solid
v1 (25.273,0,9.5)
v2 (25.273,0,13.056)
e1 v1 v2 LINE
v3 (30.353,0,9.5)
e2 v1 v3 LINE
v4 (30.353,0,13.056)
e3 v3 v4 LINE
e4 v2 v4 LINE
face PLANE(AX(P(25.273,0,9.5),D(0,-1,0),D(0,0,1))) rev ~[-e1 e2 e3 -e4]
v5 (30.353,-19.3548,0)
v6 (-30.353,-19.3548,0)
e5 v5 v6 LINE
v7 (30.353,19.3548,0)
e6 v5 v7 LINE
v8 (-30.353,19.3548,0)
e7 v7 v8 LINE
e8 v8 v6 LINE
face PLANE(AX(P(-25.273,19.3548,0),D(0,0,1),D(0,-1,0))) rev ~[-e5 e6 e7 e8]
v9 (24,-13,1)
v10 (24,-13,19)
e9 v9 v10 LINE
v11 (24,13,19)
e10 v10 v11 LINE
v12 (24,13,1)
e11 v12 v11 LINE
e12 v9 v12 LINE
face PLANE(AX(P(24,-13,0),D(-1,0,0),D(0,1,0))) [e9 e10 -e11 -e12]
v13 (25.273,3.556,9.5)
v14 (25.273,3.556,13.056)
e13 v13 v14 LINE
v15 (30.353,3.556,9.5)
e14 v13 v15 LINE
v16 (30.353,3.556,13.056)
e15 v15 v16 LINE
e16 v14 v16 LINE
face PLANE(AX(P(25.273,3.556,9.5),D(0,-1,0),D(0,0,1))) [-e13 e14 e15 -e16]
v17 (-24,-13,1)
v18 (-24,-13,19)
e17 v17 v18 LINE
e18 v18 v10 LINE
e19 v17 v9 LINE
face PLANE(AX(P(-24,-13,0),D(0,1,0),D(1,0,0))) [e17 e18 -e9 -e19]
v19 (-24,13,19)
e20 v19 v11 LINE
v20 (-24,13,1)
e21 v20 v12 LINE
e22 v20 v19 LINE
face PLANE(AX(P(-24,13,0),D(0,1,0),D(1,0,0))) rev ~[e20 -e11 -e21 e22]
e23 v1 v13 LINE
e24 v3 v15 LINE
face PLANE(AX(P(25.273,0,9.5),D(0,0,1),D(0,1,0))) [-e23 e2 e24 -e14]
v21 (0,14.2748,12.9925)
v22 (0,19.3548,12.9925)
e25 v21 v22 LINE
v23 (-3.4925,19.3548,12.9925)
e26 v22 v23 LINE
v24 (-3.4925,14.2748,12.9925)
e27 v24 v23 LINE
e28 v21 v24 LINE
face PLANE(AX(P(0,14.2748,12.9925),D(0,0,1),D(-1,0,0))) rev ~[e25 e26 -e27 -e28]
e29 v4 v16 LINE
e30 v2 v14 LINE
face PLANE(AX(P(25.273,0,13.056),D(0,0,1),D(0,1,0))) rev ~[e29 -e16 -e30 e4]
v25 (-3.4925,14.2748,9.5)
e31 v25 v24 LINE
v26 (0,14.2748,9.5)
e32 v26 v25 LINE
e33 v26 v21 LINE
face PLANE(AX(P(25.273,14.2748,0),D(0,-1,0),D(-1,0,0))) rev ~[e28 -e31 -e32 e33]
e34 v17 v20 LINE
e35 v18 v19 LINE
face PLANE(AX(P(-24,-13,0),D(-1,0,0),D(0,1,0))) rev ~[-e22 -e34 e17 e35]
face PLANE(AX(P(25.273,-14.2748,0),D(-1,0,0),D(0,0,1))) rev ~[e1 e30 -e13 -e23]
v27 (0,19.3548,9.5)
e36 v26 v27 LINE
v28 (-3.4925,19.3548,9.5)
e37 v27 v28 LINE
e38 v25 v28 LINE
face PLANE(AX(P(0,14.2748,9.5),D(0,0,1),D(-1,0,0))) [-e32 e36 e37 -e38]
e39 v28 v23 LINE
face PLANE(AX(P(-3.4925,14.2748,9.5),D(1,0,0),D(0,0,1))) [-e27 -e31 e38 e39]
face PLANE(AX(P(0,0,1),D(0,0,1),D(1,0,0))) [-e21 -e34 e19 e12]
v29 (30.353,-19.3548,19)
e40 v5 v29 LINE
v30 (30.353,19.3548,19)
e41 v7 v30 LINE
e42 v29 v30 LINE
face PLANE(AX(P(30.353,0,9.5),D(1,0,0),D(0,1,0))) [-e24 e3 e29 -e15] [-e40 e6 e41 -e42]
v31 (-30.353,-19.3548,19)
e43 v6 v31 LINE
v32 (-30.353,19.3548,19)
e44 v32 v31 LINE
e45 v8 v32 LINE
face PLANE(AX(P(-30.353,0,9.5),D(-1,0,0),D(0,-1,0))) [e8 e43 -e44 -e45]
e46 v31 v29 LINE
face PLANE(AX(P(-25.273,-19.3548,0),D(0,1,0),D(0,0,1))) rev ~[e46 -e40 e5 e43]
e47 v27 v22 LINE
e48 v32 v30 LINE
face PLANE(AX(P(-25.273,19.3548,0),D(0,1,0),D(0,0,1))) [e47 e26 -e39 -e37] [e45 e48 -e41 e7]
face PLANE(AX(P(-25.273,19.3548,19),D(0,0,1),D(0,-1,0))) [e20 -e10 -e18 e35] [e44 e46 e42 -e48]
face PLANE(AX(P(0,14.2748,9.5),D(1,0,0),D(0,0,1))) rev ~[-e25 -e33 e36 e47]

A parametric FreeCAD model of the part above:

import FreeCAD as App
import Part
import Sketcher

V = App.Vector
Q = App.Units.Quantity


def add_polygon(sketch, points):
    """Adds a closed chain of lines whose ends are joined by coincident constraints."""
    first, n = sketch.GeometryCount, len(points)
    for a, b in zip(points, points[1:] + points[:1]):
        sketch.addGeometry(Part.LineSegment(App.Vector(*a, 0), App.Vector(*b, 0)), False)
    for i in range(n):
        sketch.addConstraint(Sketcher.Constraint("Coincident", first + i, 2, first + (i + 1) % n, 1))

doc = App.newDocument("Part")
body = doc.addObject("PartDesign::Body", "Body")

# Sketch on XY plane
sketch1 = doc.addObject("Sketcher::SketchObject", "Sketch")
body.addObject(sketch1)
sketch1.AttachmentSupport = (doc.XY_Plane, [""])
sketch1.MapMode = "FlatFace"
add_polygon(sketch1, [(-24, 13), (-24, -13), (24, -13), (24, 13)])  # lines 0-3
sketch1.addConstraint(Sketcher.Constraint("Vertical", 0))
sketch1.addConstraint(Sketcher.Constraint("Horizontal", 1))
sketch1.addConstraint(Sketcher.Constraint("Vertical", 2))
sketch1.addConstraint(Sketcher.Constraint("Horizontal", 3))
sketch1.addConstraint(Sketcher.Constraint("Symmetric", 0, 2, 2, 2, -1, 1))
sketch1.addConstraint(Sketcher.Constraint("DistanceX", 1, 1, 1, 2, 48.0))
sketch1.addConstraint(Sketcher.Constraint("DistanceY", 0, 2, 0, 1, 26.0))
pad1 = doc.addObject("PartDesign::Pad", "Pad")
body.addObject(pad1)
pad1.Profile = sketch1
pad1.Length = 1

# Sketch on XY plane
sketch2 = doc.addObject("Sketcher::SketchObject", "Sketch001")
body.addObject(sketch2)
sketch2.AttachmentSupport = (doc.XY_Plane, [""])
sketch2.MapMode = "FlatFace"
add_polygon(sketch2, [(25.273, 14.2748), (-25.273, 14.2748), (-25.273, -14.2748), (25.273, -14.2748)])  # lines 0-3
add_polygon(sketch2, [(-24, -13), (-24, 13), (24, 13), (24, -13)])  # lines 4-7
sketch2.addConstraint(Sketcher.Constraint("Horizontal", 0))
sketch2.addConstraint(Sketcher.Constraint("Vertical", 1))
sketch2.addConstraint(Sketcher.Constraint("Horizontal", 2))
sketch2.addConstraint(Sketcher.Constraint("Vertical", 3))
sketch2.addConstraint(Sketcher.Constraint("Vertical", 4))
sketch2.addConstraint(Sketcher.Constraint("Horizontal", 5))
sketch2.addConstraint(Sketcher.Constraint("Vertical", 6))
sketch2.addConstraint(Sketcher.Constraint("Horizontal", 7))
sketch2.addConstraint(Sketcher.Constraint("Symmetric", 0, 2, 2, 2, -1, 1))
sketch2.addConstraint(Sketcher.Constraint("Symmetric", 4, 2, 6, 2, -1, 1))
sketch2.addConstraint(Sketcher.Constraint("DistanceX", 0, 2, 0, 1, Q("1.99 in")))
sketch2.addConstraint(Sketcher.Constraint("DistanceY", 1, 2, 1, 1, Q("1.124 in")))
sketch2.addConstraint(Sketcher.Constraint("DistanceX", 5, 1, 5, 2, 48.0))
sketch2.addConstraint(Sketcher.Constraint("DistanceY", 4, 1, 4, 2, 26.0))
pad2 = doc.addObject("PartDesign::Pad", "Pad001")
body.addObject(pad2)
pad2.Profile = sketch2
pad2.Length = 19

# Sketch on XZ plane
sketch3 = doc.addObject("Sketcher::SketchObject", "Sketch002")
body.addObject(sketch3)
sketch3.AttachmentSupport = (doc.XZ_Plane, [""])
sketch3.MapMode = "FlatFace"
sketch3.AttachmentOffset = App.Placement(V(0, 0, -0.562 * 25.4), App.Rotation())
add_polygon(sketch3, [(25.273, 19), (25.273, 0), (-25.273, 0), (-25.273, 19)])  # lines 0-3
add_polygon(sketch3, [(-3.4925, 9.5), (0, 9.5), (0, 12.9925), (-3.4925, 12.9925)])  # lines 4-7
sketch3.addConstraint(Sketcher.Constraint("Vertical", 0))
sketch3.addConstraint(Sketcher.Constraint("Horizontal", 1))
sketch3.addConstraint(Sketcher.Constraint("Vertical", 2))
sketch3.addConstraint(Sketcher.Constraint("Horizontal", 3))
sketch3.addConstraint(Sketcher.Constraint("Horizontal", 4))
sketch3.addConstraint(Sketcher.Constraint("Vertical", 5))
sketch3.addConstraint(Sketcher.Constraint("Horizontal", 6))
sketch3.addConstraint(Sketcher.Constraint("Vertical", 7))
sketch3.addConstraint(Sketcher.Constraint("Symmetric", 0, 2, 1, 2, -1, 1))
sketch3.addConstraint(Sketcher.Constraint("PointOnObject", 4, 2, -2))
sketch3.addConstraint(Sketcher.Constraint("Equal", 6, 5))
sketch3.addConstraint(Sketcher.Constraint("DistanceX", 1, 2, 1, 1, Q("1.99 in")))
sketch3.addConstraint(Sketcher.Constraint("DistanceX", 4, 1, 4, 2, Q("0.1375 in")))
sketch3.addConstraint(Sketcher.Constraint("DistanceY", 0, 2, 0, 1, 19.0))
sketch3.addConstraint(Sketcher.Constraint("DistanceY", -1, 1, 4, 2, 9.5))
pad3 = doc.addObject("PartDesign::Pad", "Pad002")
body.addObject(pad3)
pad3.Profile = sketch3
pad3.Length = Q("0.2 in")
pad3.Reversed = True

# Sketch on XZ plane
sketch4 = doc.addObject("Sketcher::SketchObject", "Sketch003")
body.addObject(sketch4)
sketch4.AttachmentSupport = (doc.XZ_Plane, [""])
sketch4.MapMode = "FlatFace"
sketch4.AttachmentOffset = App.Placement(V(0, 0, 0.562 * 25.4), App.Rotation())
add_polygon(sketch4, [(-25.273, 19), (-25.273, 0), (25.273, 0), (25.273, 19)])  # lines 0-3
sketch4.addConstraint(Sketcher.Constraint("Vertical", 0))
sketch4.addConstraint(Sketcher.Constraint("Horizontal", 1))
sketch4.addConstraint(Sketcher.Constraint("Vertical", 2))
sketch4.addConstraint(Sketcher.Constraint("Horizontal", 3))
sketch4.addConstraint(Sketcher.Constraint("Symmetric", 0, 2, 1, 2, -1, 1))
sketch4.addConstraint(Sketcher.Constraint("DistanceX", 1, 1, 1, 2, Q("1.99 in")))
sketch4.addConstraint(Sketcher.Constraint("DistanceY", 0, 2, 0, 1, 19.0))
pad4 = doc.addObject("PartDesign::Pad", "Pad003")
body.addObject(pad4)
pad4.Profile = sketch4
pad4.Length = Q("0.2 in")

# Sketch on YZ plane
sketch5 = doc.addObject("Sketcher::SketchObject", "Sketch004")
body.addObject(sketch5)
sketch5.AttachmentSupport = (doc.YZ_Plane, [""])
sketch5.MapMode = "FlatFace"
sketch5.AttachmentOffset = App.Placement(V(0, 0, 0.995 * 25.4), App.Rotation())
add_polygon(sketch5, [(-19.3548, 19), (-19.3548, 0), (19.3548, 0), (19.3548, 19)])  # lines 0-3
add_polygon(sketch5, [(3.556, 9.5), (0, 9.5), (0, 13.056), (3.556, 13.056)])  # lines 4-7
sketch5.addConstraint(Sketcher.Constraint("Vertical", 0))
sketch5.addConstraint(Sketcher.Constraint("Horizontal", 1))
sketch5.addConstraint(Sketcher.Constraint("Vertical", 2))
sketch5.addConstraint(Sketcher.Constraint("Horizontal", 3))
sketch5.addConstraint(Sketcher.Constraint("Horizontal", 4))
sketch5.addConstraint(Sketcher.Constraint("Vertical", 5))
sketch5.addConstraint(Sketcher.Constraint("Horizontal", 6))
sketch5.addConstraint(Sketcher.Constraint("Vertical", 7))
sketch5.addConstraint(Sketcher.Constraint("Symmetric", 0, 2, 1, 2, -1, 1))
sketch5.addConstraint(Sketcher.Constraint("PointOnObject", 4, 2, -2))
sketch5.addConstraint(Sketcher.Constraint("Equal", 6, 5))
sketch5.addConstraint(Sketcher.Constraint("DistanceX", 4, 2, 4, 1, Q("0.14 in")))
sketch5.addConstraint(Sketcher.Constraint("DistanceX", 1, 1, 1, 2, Q("1.524 in")))
sketch5.addConstraint(Sketcher.Constraint("DistanceY", 0, 2, 0, 1, 19.0))
sketch5.addConstraint(Sketcher.Constraint("DistanceY", -1, 1, 4, 2, 9.5))
pad5 = doc.addObject("PartDesign::Pad", "Pad004")
body.addObject(pad5)
pad5.Profile = sketch5
pad5.Length = Q("0.2 in")

# Sketch on YZ plane
sketch6 = doc.addObject("Sketcher::SketchObject", "Sketch005")
body.addObject(sketch6)
sketch6.AttachmentSupport = (doc.YZ_Plane, [""])
sketch6.MapMode = "FlatFace"
sketch6.AttachmentOffset = App.Placement(V(0, 0, -0.995 * 25.4), App.Rotation())
add_polygon(sketch6, [(19.3548, 19), (19.3548, 0), (-19.3548, 0), (-19.3548, 19)])  # lines 0-3
sketch6.addConstraint(Sketcher.Constraint("Vertical", 0))
sketch6.addConstraint(Sketcher.Constraint("Horizontal", 1))
sketch6.addConstraint(Sketcher.Constraint("Vertical", 2))
sketch6.addConstraint(Sketcher.Constraint("Horizontal", 3))
sketch6.addConstraint(Sketcher.Constraint("Symmetric", 0, 2, 1, 2, -1, 1))
sketch6.addConstraint(Sketcher.Constraint("DistanceX", 1, 2, 1, 1, Q("1.524 in")))
sketch6.addConstraint(Sketcher.Constraint("DistanceY", 0, 2, 0, 1, 19.0))
pad6 = doc.addObject("PartDesign::Pad", "Pad005")
body.addObject(pad6)
pad6.Profile = sketch6
pad6.Length = Q("0.2 in")
pad6.Reversed = True

doc.recompute()
